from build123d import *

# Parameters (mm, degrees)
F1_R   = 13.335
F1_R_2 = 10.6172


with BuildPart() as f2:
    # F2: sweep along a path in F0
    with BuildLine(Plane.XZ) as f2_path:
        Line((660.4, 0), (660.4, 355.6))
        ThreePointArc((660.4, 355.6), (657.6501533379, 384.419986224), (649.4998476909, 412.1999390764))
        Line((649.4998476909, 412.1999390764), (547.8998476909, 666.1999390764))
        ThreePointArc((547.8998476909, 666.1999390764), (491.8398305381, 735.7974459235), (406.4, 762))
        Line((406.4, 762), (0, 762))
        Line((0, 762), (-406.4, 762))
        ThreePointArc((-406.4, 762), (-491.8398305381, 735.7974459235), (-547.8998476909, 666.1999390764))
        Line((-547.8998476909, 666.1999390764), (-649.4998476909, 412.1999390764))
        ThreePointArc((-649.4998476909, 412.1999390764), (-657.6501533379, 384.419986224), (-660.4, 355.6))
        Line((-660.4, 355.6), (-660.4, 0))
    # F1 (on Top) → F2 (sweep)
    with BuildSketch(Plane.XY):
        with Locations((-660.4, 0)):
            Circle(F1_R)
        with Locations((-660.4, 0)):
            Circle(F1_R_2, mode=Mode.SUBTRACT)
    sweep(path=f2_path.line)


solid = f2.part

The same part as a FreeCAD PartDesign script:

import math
import FreeCAD as App
import Part
import Sketcher
from FreeCAD import Vector
Q = App.Units.Quantity

doc = App.newDocument("Part")
body = doc.addObject("PartDesign::Body", "Body")

# Sketch on XY plane
sketch1 = body.newObject("Sketcher::SketchObject", "Sketch")
sketch1.AttachmentSupport = (doc.getObject("XY_Plane"), [""])
sketch1.MapMode = "FlatFace"
sketch1.addGeometry(Part.Circle(Vector(-660.4, 0, 0), Vector(0, 0, 1), 13.335), False)
sketch1.addGeometry(Part.Circle(Vector(-660.4, 0, 0), Vector(0, 0, 1), 10.6172), False)
sketch1.addConstraint(Sketcher.Constraint("Coincident", 1, 3, 0, 3))
sketch1.addConstraint(Sketcher.Constraint("PointOnObject", 0, 3, -1))
sketch1.addConstraint(Sketcher.Constraint("Diameter", 0, Q("1.05 in")))
sketch1.addConstraint(Sketcher.Constraint("Diameter", 1, Q("0.836 in")))
sketch1.addConstraint(Sketcher.Constraint("DistanceX", 0, 3, -1, 1, Q("26 in")))

# Sketch on XZ plane
sketch2 = body.newObject("Sketcher::SketchObject", "Sketch001")
sketch2.AttachmentSupport = (doc.getObject("XZ_Plane"), [""])
sketch2.MapMode = "FlatFace"
sketch2.addGeometry(Part.LineSegment(Vector(660.4, 0, 0), Vector(660.4, 355.6, 0)), False)
sketch2.addGeometry(Part.ArcOfCircle(Part.Circle(Vector(508, 355.6, 0), Vector(0, 0, 1), 152.4), math.radians(0), math.radians(21.801409)), False)
sketch2.addGeometry(Part.LineSegment(Vector(649.499848, 412.199939, 0), Vector(547.899848, 666.199939, 0)), False)
sketch2.addGeometry(Part.ArcOfCircle(Part.Circle(Vector(406.4, 609.6, 0), Vector(0, 0, 1), 152.4), math.radians(21.801409), math.radians(90)), False)
sketch2.addGeometry(Part.LineSegment(Vector(406.4, 762, 0), Vector(-406.4, 762, 0)), False)
sketch2.addGeometry(Part.ArcOfCircle(Part.Circle(Vector(-406.4, 609.6, 0), Vector(0, 0, 1), 152.4), math.radians(90), math.radians(158.198591)), False)
sketch2.addGeometry(Part.LineSegment(Vector(-547.899848, 666.199939, 0), Vector(-649.499848, 412.199939, 0)), False)
sketch2.addGeometry(Part.ArcOfCircle(Part.Circle(Vector(-508, 355.6, 0), Vector(0, 0, 1), 152.4), math.radians(158.198591), math.radians(180)), False)
sketch2.addGeometry(Part.LineSegment(Vector(-660.4, 355.6, 0), Vector(-660.4, 0, 0)), False)
sketch2.addConstraint(Sketcher.Constraint("Tangent", 0, 2, 1, 1))
sketch2.addConstraint(Sketcher.Constraint("Tangent", 1, 2, 2, 1))
sketch2.addConstraint(Sketcher.Constraint("Tangent", 2, 2, 3, 1))
sketch2.addConstraint(Sketcher.Constraint("Tangent", 3, 2, 4, 1))
sketch2.addConstraint(Sketcher.Constraint("Tangent", 4, 2, 5, 1))
sketch2.addConstraint(Sketcher.Constraint("Tangent", 5, 2, 6, 1))
sketch2.addConstraint(Sketcher.Constraint("Tangent", 6, 2, 7, 1))
sketch2.addConstraint(Sketcher.Constraint("Tangent", 7, 2, 8, 1))
sketch2.addConstraint(Sketcher.Constraint("Vertical", 0))
sketch2.addConstraint(Sketcher.Constraint("Horizontal", 4))
sketch2.addConstraint(Sketcher.Constraint("Vertical", 8))
sketch2.addConstraint(Sketcher.Constraint("Equal", 1, 3))
sketch2.addConstraint(Sketcher.Constraint("Equal", 3, 5))
sketch2.addConstraint(Sketcher.Constraint("Equal", 5, 7))
sketch2.addConstraint(Sketcher.Constraint("Symmetric", 0, 1, 8, 2, -1, 1))
sketch2.addConstraint(Sketcher.Constraint("Symmetric", 1, 2, 6, 2, -2))
sketch2.addConstraint(Sketcher.Constraint("PointOnObject", 0, 1, -1))
sketch2.addConstraint(Sketcher.Constraint("Radius", 1, Q("6 in")))
sketch2.addConstraint(Sketcher.Constraint("DistanceX", 4, 2, 4, 1, Q("32 in")))
sketch2.addConstraint(Sketcher.Constraint("DistanceY", 0, 1, 0, 2, Q("14 in")))
sketch2.addConstraint(Sketcher.Constraint("DistanceX", -1, 1, 1, 3, Q("20 in")))
sketch2.addConstraint(Sketcher.Constraint("DistanceY", -1, 1, 3, 3, Q("24 in")))
doc.recompute()

additivepipe = body.newObject("PartDesign::AdditivePipe", "AdditivePipe")
additivepipe.Profile = sketch1
additivepipe.Spine = (sketch2, ["Edge1", "Edge2", "Edge3", "Edge4", "Edge5", "Edge6", "Edge7", "Edge8", "Edge9"])

doc.recompute()
